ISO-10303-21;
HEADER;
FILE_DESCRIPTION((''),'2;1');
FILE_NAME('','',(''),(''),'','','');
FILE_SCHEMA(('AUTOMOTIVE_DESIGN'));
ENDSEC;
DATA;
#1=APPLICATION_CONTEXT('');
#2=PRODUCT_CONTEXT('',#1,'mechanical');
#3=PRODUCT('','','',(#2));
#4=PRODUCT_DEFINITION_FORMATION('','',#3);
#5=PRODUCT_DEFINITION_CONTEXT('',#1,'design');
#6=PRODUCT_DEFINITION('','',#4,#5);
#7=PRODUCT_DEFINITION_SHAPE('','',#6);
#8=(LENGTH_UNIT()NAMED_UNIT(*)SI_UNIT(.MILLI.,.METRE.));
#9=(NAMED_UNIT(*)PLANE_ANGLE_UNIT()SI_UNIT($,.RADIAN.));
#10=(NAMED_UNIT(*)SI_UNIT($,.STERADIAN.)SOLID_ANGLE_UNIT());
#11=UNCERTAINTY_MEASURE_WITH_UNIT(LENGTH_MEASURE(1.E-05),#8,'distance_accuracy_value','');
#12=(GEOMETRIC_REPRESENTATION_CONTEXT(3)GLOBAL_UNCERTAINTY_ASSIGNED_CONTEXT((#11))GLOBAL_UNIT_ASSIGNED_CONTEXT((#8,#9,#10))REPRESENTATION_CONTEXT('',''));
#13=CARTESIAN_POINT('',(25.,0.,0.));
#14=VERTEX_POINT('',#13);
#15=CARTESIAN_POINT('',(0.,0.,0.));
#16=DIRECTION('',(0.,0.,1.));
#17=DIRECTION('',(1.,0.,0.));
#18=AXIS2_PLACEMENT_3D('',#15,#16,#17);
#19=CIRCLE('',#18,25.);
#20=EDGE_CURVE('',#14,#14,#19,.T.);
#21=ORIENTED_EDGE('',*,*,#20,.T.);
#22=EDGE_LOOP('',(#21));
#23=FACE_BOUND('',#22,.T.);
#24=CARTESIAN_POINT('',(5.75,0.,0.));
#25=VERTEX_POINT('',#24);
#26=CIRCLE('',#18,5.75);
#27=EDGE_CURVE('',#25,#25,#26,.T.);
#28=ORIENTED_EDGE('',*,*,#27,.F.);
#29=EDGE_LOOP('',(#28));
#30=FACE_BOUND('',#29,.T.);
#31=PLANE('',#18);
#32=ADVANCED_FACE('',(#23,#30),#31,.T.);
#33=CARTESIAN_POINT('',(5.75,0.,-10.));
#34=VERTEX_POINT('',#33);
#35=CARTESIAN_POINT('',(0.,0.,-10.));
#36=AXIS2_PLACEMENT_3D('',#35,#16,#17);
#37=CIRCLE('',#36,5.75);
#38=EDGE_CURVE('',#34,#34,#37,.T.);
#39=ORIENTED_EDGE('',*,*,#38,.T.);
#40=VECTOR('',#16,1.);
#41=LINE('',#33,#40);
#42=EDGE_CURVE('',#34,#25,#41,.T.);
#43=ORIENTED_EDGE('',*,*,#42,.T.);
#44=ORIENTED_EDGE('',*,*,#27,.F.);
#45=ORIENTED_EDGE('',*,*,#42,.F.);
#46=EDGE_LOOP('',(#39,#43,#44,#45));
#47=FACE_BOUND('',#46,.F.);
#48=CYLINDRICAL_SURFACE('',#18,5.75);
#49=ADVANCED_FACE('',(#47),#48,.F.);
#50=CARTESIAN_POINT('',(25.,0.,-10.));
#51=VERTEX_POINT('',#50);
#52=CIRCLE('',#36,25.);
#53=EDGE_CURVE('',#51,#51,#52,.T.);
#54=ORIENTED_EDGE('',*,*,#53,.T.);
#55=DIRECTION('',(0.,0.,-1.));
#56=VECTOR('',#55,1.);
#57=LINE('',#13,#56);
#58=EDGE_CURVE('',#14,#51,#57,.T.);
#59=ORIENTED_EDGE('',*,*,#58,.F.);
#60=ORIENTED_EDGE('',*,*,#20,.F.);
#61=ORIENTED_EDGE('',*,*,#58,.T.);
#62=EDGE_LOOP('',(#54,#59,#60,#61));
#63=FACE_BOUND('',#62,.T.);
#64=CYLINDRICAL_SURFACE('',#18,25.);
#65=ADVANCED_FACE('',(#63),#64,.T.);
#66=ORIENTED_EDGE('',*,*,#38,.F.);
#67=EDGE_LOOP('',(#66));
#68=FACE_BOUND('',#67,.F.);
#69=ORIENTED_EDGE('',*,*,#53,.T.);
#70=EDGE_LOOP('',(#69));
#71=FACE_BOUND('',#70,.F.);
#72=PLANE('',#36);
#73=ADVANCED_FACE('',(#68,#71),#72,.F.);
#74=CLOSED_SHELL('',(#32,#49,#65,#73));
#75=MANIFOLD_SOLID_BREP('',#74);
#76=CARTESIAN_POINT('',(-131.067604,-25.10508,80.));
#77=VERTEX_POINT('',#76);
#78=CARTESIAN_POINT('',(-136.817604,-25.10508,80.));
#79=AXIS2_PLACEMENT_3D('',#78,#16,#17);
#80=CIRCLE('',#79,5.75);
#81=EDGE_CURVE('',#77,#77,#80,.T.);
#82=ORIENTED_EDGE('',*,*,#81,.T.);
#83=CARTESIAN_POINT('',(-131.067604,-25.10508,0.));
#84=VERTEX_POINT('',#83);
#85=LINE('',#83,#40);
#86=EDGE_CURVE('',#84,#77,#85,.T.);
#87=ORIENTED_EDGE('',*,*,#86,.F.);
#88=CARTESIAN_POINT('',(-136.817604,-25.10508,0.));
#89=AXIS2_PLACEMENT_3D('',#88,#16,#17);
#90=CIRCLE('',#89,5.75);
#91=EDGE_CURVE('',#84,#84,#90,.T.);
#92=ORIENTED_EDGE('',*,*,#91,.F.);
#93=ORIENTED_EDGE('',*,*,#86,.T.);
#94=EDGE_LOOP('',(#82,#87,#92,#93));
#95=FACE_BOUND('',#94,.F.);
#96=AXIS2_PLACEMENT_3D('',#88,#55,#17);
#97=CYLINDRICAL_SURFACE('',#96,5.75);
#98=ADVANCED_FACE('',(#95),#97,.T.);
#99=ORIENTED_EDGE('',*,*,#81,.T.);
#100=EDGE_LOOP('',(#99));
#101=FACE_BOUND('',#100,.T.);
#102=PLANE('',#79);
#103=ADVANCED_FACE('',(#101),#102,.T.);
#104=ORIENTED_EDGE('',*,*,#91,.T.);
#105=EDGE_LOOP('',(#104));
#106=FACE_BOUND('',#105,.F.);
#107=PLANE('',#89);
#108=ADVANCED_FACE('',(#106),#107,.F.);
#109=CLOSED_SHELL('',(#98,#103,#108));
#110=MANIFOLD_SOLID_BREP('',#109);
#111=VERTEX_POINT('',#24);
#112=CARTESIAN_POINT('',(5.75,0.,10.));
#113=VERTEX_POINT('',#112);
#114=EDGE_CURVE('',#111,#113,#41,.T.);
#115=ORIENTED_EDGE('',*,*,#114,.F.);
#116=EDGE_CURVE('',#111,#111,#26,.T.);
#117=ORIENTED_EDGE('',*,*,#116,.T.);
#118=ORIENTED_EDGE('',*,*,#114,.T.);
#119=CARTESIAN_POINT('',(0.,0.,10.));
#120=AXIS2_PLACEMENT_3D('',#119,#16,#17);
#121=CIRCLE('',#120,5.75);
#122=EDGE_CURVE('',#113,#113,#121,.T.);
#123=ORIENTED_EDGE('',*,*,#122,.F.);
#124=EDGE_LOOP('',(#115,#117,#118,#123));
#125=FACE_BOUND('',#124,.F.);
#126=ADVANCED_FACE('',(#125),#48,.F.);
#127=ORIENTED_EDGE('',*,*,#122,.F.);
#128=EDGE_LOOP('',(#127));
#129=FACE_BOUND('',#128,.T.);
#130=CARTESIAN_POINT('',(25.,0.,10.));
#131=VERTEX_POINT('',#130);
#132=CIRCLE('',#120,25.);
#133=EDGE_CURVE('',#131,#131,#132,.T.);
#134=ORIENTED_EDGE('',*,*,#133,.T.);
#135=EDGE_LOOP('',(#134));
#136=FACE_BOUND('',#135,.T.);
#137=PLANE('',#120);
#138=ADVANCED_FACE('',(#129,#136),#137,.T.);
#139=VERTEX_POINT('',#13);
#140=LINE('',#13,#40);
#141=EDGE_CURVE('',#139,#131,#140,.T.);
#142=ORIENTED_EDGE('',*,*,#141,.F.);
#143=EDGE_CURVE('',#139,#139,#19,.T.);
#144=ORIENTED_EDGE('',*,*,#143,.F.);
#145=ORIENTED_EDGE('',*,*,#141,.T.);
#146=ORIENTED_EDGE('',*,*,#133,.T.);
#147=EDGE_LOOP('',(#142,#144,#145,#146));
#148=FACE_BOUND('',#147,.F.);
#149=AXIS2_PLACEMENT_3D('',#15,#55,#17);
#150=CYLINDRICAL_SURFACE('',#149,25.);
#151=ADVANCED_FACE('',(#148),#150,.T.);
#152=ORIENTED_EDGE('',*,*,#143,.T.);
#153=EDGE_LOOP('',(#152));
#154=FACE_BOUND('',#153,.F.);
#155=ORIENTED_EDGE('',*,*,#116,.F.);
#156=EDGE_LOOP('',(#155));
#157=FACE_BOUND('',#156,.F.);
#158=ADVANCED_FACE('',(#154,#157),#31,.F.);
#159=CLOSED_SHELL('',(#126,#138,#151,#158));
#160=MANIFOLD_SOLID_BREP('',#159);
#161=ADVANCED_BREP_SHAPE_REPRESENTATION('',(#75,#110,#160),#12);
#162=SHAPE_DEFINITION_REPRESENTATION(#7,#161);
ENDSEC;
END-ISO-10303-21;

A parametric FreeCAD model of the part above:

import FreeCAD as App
import Part
import Sketcher

V = App.Vector
Q = App.Units.Quantity

doc = App.newDocument("Part")
body = doc.addObject("PartDesign::Body", "Body")

# Sketch on XY plane
sketch1 = body.newObject("Sketcher::SketchObject", "Sketch")
sketch1.AttachmentSupport = (doc.getObject("XY_Plane"), [""])
sketch1.MapMode = "FlatFace"
sketch1.addGeometry(Part.Circle(V(0, 0, 0), V(0, 0, 1), 25), False)
sketch1.addConstraint([
    Sketcher.Constraint("Coincident", 0, 3, -1, 1),
    Sketcher.Constraint("Diameter", 0, Q("50 mm")),
])
pad1 = body.newObject("PartDesign::Pad", "Pad")
pad1.Profile = sketch1
pad1.Length = 10
body2 = doc.addObject("PartDesign::Body", "Body001")

# Sketch on XY plane
sketch2 = body2.newObject("Sketcher::SketchObject", "Sketch001")
sketch2.AttachmentSupport = (doc.getObject("XY_Plane001"), [""])
sketch2.MapMode = "FlatFace"
sketch2.addGeometry(Part.Circle(V(0, 0, 0), V(0, 0, 1), 25), False)
sketch2.addConstraint([
    Sketcher.Constraint("Coincident", 0, 3, -1, 1),
    Sketcher.Constraint("Diameter", 0, Q("50 mm")),
])
pad2 = body2.newObject("PartDesign::Pad", "Pad001")
pad2.Profile = sketch2
pad2.Length = 10
pad2.Reversed = True
body3 = doc.addObject("PartDesign::Body", "Body002")

# Sketch on XY plane
sketch3 = body3.newObject("Sketcher::SketchObject", "Sketch002")
sketch3.AttachmentSupport = (doc.getObject("XY_Plane002"), [""])
sketch3.MapMode = "FlatFace"
sketch3.addGeometry(Part.Circle(V(0, 0, 0), V(0, 0, 1), 6), False)
sketch3.addConstraint([
    Sketcher.Constraint("Coincident", 0, 3, -1, 1),
    Sketcher.Constraint("Diameter", 0, Q("11.5 mm")),
])
pad3 = body3.newObject("PartDesign::Pad", "Pad002")
pad3.Profile = sketch3
pad3.Type = "TwoLengths"
pad3.Length = 10
pad3.Length2 = 10
doc.recompute()

body4 = doc.addObject("PartDesign::Body", "Body003")
body4.BaseFeature = body3
boolean = body.newObject("PartDesign::Boolean", "Boolean")
boolean.Type = "Cut"
boolean.addObjects([body4])
doc.recompute()

boolean2 = body2.newObject("PartDesign::Boolean", "Boolean001")
boolean2.Type = "Cut"
boolean2.addObjects([body3])
body5 = doc.addObject("PartDesign::Body", "Body004")

# Sketch on XY plane
sketch4 = body5.newObject("Sketcher::SketchObject", "Sketch003")
sketch4.AttachmentSupport = (doc.getObject("XY_Plane004"), [""])
sketch4.MapMode = "FlatFace"
sketch4.addGeometry(Part.Circle(V(-137, -25, 0), V(0, 0, 1), 6), False)
sketch4.addConstraint([
    Sketcher.Constraint("Diameter", 0, Q("11.5 mm")),
    Sketcher.Constraint("DistanceY", 0, 3, -1, 1, Q("25.10508 mm")),
    Sketcher.Constraint("DistanceX", 0, 3, -1, 1, Q("136.817604 mm")),
])
pad4 = body5.newObject("PartDesign::Pad", "Pad003")
pad4.Profile = sketch4
pad4.Length = 80

doc.recompute()
